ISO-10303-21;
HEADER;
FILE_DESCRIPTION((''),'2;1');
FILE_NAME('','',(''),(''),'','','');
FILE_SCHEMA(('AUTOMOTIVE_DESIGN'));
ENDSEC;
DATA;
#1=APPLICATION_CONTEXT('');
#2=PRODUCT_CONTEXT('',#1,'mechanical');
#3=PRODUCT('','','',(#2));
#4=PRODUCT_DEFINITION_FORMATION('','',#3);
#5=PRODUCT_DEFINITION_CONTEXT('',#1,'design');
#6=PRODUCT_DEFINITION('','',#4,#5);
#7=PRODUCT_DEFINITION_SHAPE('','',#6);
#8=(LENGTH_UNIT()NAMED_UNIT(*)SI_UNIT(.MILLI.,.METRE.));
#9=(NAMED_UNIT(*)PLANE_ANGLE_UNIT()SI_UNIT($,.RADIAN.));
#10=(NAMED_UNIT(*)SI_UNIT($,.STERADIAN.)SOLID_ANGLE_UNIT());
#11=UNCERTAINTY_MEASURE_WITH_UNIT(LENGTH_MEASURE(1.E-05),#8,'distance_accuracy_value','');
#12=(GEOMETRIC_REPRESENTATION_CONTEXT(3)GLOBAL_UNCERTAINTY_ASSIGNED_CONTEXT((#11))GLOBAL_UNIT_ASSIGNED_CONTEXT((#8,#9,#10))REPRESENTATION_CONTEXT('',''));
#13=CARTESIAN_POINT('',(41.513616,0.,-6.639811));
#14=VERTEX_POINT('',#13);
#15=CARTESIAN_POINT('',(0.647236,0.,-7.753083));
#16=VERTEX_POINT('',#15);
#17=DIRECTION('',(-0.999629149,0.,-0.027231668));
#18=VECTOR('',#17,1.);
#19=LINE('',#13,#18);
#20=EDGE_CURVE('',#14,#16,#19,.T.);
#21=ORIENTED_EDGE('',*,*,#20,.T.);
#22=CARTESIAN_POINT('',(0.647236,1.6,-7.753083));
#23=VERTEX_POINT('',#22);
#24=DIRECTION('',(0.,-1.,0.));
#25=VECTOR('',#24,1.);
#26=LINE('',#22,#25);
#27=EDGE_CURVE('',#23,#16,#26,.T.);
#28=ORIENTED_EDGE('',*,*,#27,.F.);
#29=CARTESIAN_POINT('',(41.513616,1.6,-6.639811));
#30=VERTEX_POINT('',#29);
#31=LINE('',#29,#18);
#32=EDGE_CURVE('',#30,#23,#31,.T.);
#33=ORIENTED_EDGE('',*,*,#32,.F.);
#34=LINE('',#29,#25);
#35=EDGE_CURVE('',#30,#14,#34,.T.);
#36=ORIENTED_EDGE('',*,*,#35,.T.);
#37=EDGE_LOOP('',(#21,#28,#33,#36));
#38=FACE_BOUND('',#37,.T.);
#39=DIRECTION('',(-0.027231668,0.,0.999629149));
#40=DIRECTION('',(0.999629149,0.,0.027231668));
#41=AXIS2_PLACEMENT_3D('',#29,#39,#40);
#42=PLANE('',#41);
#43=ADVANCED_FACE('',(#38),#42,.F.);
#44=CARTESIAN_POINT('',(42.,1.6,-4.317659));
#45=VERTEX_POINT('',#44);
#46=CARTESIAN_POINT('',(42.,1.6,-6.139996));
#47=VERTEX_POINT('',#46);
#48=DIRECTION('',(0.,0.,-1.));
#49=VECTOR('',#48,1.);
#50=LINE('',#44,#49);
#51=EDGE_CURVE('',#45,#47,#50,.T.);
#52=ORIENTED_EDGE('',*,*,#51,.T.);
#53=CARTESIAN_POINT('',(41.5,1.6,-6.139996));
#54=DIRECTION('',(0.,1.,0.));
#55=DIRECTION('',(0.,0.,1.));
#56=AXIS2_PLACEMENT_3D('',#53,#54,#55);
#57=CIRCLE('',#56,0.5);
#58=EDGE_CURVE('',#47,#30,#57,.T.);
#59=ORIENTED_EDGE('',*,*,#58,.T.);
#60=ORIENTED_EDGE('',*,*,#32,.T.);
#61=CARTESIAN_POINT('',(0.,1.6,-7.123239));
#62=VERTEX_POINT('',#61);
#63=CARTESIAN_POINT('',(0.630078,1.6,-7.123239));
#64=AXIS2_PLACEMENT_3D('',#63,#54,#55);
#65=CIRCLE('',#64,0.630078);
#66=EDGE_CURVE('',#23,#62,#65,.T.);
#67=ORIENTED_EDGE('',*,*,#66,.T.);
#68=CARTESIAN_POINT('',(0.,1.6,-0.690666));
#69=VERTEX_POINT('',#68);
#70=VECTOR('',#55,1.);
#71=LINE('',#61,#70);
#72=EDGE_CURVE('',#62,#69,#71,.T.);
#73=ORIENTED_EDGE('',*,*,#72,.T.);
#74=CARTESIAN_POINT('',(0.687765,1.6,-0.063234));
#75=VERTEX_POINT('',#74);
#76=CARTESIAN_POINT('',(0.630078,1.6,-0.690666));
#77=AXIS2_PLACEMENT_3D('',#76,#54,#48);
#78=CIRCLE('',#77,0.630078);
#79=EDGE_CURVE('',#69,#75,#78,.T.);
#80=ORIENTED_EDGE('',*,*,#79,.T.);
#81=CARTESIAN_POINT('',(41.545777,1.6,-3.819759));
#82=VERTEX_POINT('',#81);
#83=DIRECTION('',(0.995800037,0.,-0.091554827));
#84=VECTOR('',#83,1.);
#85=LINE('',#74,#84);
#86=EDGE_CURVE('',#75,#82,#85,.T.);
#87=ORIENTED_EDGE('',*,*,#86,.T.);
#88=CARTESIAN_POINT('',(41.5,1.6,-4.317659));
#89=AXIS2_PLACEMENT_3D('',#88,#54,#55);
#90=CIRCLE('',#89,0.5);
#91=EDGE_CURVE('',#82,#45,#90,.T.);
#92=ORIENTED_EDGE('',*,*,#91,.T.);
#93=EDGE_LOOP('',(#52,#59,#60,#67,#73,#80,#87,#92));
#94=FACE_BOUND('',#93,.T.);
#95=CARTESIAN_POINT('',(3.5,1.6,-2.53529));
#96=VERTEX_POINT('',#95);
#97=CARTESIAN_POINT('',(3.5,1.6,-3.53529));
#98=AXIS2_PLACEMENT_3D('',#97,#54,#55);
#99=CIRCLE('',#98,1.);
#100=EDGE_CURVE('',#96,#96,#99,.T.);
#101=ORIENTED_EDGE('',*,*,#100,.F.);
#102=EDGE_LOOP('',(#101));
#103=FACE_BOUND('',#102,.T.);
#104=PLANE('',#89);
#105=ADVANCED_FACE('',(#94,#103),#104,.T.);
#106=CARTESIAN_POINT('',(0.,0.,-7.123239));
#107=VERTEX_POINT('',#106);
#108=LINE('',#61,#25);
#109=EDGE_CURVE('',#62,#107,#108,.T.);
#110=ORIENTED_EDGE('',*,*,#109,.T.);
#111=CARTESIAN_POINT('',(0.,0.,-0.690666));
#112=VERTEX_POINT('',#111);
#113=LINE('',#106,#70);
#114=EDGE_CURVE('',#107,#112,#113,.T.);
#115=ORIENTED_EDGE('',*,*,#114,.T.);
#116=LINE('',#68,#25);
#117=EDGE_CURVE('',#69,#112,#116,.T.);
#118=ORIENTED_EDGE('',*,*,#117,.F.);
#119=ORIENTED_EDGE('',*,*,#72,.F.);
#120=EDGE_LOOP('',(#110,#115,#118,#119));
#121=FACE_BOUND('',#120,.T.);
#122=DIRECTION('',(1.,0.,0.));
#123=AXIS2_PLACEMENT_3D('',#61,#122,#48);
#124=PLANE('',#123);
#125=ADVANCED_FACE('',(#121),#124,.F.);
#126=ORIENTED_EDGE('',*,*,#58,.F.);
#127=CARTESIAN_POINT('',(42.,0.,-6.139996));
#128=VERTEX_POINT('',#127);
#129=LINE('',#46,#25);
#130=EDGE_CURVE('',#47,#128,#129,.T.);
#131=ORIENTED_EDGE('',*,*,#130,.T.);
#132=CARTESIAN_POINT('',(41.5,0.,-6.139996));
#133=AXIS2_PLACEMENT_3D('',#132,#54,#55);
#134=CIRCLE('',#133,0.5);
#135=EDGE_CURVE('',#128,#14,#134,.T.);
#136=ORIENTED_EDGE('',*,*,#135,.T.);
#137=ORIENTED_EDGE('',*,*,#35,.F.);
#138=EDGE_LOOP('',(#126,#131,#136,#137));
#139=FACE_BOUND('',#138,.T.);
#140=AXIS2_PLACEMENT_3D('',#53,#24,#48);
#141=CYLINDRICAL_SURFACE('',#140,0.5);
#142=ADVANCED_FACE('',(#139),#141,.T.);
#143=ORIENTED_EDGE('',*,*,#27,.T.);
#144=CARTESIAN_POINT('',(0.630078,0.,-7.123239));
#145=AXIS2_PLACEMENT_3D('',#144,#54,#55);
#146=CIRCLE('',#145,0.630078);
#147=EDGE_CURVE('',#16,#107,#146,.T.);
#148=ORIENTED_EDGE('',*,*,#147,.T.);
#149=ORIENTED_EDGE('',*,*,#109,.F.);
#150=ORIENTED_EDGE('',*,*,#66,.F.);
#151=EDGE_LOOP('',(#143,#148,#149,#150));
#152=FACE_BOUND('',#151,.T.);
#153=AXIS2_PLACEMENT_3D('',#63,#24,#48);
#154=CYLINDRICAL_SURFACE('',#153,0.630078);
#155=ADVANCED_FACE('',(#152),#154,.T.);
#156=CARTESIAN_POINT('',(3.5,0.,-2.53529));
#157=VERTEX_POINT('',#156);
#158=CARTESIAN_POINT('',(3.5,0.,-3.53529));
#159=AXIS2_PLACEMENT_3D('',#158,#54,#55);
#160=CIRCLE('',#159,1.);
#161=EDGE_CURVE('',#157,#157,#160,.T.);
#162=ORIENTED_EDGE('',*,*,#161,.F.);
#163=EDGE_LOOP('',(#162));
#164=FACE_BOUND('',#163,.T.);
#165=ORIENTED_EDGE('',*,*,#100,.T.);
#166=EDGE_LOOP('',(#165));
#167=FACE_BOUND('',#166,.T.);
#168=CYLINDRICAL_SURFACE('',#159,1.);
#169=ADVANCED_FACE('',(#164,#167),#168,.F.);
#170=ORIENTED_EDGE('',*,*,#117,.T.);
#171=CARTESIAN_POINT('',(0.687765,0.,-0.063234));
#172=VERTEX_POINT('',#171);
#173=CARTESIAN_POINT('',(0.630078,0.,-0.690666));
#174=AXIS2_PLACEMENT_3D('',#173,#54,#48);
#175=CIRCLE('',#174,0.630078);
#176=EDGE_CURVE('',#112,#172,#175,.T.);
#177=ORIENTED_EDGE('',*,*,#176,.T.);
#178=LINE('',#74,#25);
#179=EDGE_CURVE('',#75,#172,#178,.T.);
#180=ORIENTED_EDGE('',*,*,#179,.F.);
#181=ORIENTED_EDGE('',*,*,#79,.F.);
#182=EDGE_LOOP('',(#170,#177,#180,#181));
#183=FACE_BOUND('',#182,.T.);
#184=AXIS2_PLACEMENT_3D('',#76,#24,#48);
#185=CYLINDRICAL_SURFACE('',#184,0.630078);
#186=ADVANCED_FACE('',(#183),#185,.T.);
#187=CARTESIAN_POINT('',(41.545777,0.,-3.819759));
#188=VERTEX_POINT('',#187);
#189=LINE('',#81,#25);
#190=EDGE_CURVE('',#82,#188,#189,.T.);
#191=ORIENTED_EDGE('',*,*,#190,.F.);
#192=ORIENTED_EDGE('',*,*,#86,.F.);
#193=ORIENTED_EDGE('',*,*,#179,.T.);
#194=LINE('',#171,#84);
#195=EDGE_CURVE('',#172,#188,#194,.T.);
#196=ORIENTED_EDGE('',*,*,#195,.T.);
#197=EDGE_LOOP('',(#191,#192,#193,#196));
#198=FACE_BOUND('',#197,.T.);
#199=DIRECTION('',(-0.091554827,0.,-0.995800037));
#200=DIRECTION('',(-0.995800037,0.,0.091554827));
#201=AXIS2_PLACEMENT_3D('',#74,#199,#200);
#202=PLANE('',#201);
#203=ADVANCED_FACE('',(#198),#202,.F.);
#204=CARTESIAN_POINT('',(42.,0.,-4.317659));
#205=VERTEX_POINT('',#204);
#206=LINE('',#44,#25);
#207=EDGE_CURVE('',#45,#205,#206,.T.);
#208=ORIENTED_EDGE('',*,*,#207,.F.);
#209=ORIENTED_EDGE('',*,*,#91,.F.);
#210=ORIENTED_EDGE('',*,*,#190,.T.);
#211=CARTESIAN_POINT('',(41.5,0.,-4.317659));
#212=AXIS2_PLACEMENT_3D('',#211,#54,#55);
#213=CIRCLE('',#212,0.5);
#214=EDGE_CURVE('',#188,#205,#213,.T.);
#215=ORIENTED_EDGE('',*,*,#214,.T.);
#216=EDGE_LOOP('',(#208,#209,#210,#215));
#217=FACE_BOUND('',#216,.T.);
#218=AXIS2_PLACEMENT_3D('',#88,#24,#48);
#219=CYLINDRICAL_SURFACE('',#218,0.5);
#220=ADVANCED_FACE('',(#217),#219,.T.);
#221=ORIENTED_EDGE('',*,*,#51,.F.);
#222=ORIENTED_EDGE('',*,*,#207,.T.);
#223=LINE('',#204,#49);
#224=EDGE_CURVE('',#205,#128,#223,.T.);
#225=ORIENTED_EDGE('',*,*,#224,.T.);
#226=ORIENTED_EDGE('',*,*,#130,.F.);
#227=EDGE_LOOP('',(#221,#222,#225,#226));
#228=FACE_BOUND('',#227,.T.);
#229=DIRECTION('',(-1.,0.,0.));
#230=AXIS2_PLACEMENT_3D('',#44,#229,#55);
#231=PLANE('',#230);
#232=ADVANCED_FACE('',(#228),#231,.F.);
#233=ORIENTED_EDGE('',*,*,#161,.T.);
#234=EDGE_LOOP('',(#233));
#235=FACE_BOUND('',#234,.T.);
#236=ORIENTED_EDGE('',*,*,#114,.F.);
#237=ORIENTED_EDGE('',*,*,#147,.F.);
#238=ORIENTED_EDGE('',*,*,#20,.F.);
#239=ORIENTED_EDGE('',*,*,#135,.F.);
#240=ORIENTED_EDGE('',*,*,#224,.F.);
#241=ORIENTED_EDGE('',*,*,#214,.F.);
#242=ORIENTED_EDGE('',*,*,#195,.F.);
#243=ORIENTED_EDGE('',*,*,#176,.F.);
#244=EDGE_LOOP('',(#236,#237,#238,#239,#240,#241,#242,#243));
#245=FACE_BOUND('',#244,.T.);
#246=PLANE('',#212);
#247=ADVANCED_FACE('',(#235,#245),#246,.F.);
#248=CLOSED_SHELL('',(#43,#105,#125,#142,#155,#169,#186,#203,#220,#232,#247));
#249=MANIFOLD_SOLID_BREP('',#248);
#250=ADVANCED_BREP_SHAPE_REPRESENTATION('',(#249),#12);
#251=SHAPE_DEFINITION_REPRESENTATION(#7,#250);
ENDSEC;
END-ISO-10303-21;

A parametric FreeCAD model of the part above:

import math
import FreeCAD as App
import Part
import Sketcher

V = App.Vector
Q = App.Units.Quantity

doc = App.newDocument("Part")
body = doc.addObject("PartDesign::Body", "Body")

# Sketch on XZ plane
sketch1 = body.newObject("Sketcher::SketchObject", "Sketch")
sketch1.AttachmentSupport = (doc.getObject("XZ_Plane"), [""])
sketch1.MapMode = "FlatFace"
sketch1.addGeometry([
    Part.LineSegment(V(0.687765, -0.063234, 0), V(41.545777, -3.819759, 0)),  # 0
    Part.ArcOfCircle(Part.Circle(V(41.5, -4.317659, 0), V(0, 0, 1), 0.5), math.radians(0), math.radians(84.746938)),  # 1
    Part.LineSegment(V(42, -4.317659, 0), V(42, -6.139996, 0)),  # 2
    Part.ArcOfCircle(Part.Circle(V(41.5, -6.139996, 0), V(0, 0, 1), 0.5), math.radians(-88.439548), math.radians(0)),  # 3
    Part.LineSegment(V(41.513616, -6.639811, 0), V(0.647236, -7.753083, 0)),  # 4
    Part.ArcOfCircle(Part.Circle(V(0.630078, -7.123239, 0), V(0, 0, 1), 0.630078), math.radians(-180), math.radians(-88.439547)),  # 5
    Part.LineSegment(V(0, -7.123239, 0), V(0, -0.690666, 0)),  # 6
    Part.ArcOfCircle(Part.Circle(V(0.630078, -0.690666, 0), V(0, 0, 1), 0.630078), math.radians(84.746938), math.radians(180)),  # 7
], False)
sketch1.addConstraint([
    Sketcher.Constraint("Coincident", 0, 2, 1, 2),
    Sketcher.Constraint("Coincident", 1, 1, 2, 1),
    Sketcher.Constraint("Coincident", 2, 2, 3, 2),
    Sketcher.Constraint("Coincident", 3, 1, 4, 1),
    Sketcher.Constraint("Coincident", 4, 2, 5, 2),
    Sketcher.Constraint("Coincident", 5, 1, 6, 1),
    Sketcher.Constraint("Coincident", 6, 2, 7, 2),
    Sketcher.Constraint("Coincident", 7, 1, 0, 1),
    Sketcher.Constraint("Vertical", 2),
    Sketcher.Constraint("Vertical", 6),
    Sketcher.Constraint("PointOnObject", 5, 1, -2),
    Sketcher.Constraint("Radius", 1, Q("0.5 mm")),
    Sketcher.Constraint("Radius", 3, Q("0.5 mm")),
    Sketcher.Constraint("DistanceX", -1, 1, 1, 1, Q("42 mm")),
    Sketcher.Constraint("Radius", 5, Q("0.630078 mm")),
    Sketcher.Constraint("Radius", 7, Q("0.630078 mm")),
    Sketcher.Constraint("DistanceY", 1, 3, 0, 2, Q("0.4979 mm")),
    Sketcher.Constraint("DistanceY", 1, 1, 0, 2, Q("0.4979 mm")),
    Sketcher.Constraint("Distance", 0, Q("41.030339 mm")),
    Sketcher.Constraint("Distance", 4, Q("40.881541 mm")),
    Sketcher.Constraint("DistanceY", 2, 2, 2, 1, Q("1.822337 mm")),
    Sketcher.Constraint("DistanceY", 6, 1, 6, 2, Q("6.432573 mm")),
    Sketcher.Constraint("DistanceY", 1, 3, -1, 1, Q("4.317659 mm")),
    Sketcher.Constraint("DistanceY", 5, 3, -1, 1, Q("7.123239 mm")),
    Sketcher.Constraint("DistanceY", 3, 1, -1, 1, Q("6.639811 mm")),
    Sketcher.Constraint("DistanceY", 5, 1, -1, 1, Q("7.123239 mm")),
    Sketcher.Constraint("DistanceY", 3, 3, 7, 3, Q("5.449331 mm")),
    Sketcher.Constraint("DistanceX", 3, 1, 0, 2, Q("0.032162 mm")),
])
pad1 = body.newObject("PartDesign::Pad", "Pad")
pad1.Profile = sketch1
pad1.Length = 1.6
pad1.Reversed = True

# Sketch on XZ plane
sketch2 = body.newObject("Sketcher::SketchObject", "Sketch001")
sketch2.AttachmentSupport = (doc.getObject("XZ_Plane"), [""])
sketch2.MapMode = "FlatFace"
sketch2.AttachmentOffset = App.Placement(V(0, 0, -1.6), App.Rotation())
sketch2.addGeometry(Part.Circle(V(3.5, -3.53529, 0), V(0, 0, 1), 1), False)
sketch2.addConstraint([
    Sketcher.Constraint("Diameter", 0, Q("2 mm")),
    Sketcher.Constraint("DistanceX", -1, 1, 0, 3, Q("3.5 mm")),
    Sketcher.Constraint("DistanceY", 0, 3, -1, 1, Q("3.53529 mm")),
])
pocket1 = body.newObject("PartDesign::Pocket", "Pocket")
pocket1.Profile = sketch2
pocket1.Type = "ThroughAll"
pocket1.Reversed = True

doc.recompute()
